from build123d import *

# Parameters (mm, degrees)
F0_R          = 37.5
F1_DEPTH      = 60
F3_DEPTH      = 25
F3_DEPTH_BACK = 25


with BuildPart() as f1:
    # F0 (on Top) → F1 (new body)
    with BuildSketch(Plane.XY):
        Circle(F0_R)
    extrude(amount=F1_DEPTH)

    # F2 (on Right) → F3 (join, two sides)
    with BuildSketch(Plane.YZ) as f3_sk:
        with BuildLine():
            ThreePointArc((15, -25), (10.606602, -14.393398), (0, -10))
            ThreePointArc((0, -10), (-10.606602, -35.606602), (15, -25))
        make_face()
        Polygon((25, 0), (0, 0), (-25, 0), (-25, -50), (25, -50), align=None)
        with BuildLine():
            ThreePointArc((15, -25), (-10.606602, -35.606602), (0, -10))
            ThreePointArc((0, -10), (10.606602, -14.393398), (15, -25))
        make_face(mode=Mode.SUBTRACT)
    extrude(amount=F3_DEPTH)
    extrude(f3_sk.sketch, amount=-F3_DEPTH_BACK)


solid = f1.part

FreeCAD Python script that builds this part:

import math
import FreeCAD as App
import Part
import Sketcher
Q = App.Units.Quantity


def add_polygon(sketch, points):
    """Adds a closed chain of lines whose ends are joined by coincident constraints."""
    first, n = sketch.GeometryCount, len(points)
    for a, b in zip(points, points[1:] + points[:1]):
        sketch.addGeometry(Part.LineSegment(App.Vector(*a, 0), App.Vector(*b, 0)), False)
    for i in range(n):
        sketch.addConstraint(Sketcher.Constraint("Coincident", first + i, 2, first + (i + 1) % n, 1))

doc = App.newDocument("Part")
body = doc.addObject("PartDesign::Body", "Body")

sketch1 = body.newObject("Sketcher::SketchObject", "Sketch")
sketch1.AttachmentSupport = (doc.getObject("XY_Plane"), [""])
sketch1.MapMode = "FlatFace"
sketch1.addGeometry(Part.Circle(App.Vector(0, 0, 0), App.Vector(0, 0, 1), 37.5), False)
sketch1.addConstraint([
    Sketcher.Constraint("Coincident", 0, 3, -1, 1),
    Sketcher.Constraint("Diameter", 0, Q("75 mm")),
])
pad1 = body.newObject("PartDesign::Pad", "Pad")
pad1.Profile = sketch1
pad1.Length = 60

sketch2 = body.newObject("Sketcher::SketchObject", "Sketch001")
sketch2.AttachmentSupport = (doc.getObject("YZ_Plane"), [""])
sketch2.MapMode = "FlatFace"
add_polygon(sketch2, [(25, 0), (-25, 0), (-25, -50), (25, -50)])
sketch2.addGeometry(Part.ArcOfCircle(Part.Circle(App.Vector(0.000001, -24.999999, 0), App.Vector(0, 0, 1), 14.999999), math.radians(-0.000004), math.radians(90.000004)), False)
sketch2.addGeometry(Part.ArcOfCircle(Part.Circle(App.Vector(0, -25, 0), App.Vector(0, 0, 1), 15), math.radians(89.999999), math.radians(360.000001)), False)
sketch2.addConstraint([
    Sketcher.Constraint("Tangent", 4, 1, 5, 2),
    Sketcher.Constraint("Coincident", 5, 1, 4, 2),
    Sketcher.Constraint("Horizontal", 0),
    Sketcher.Constraint("Vertical", 1),
    Sketcher.Constraint("Horizontal", 2),
    Sketcher.Constraint("Vertical", 3),
    Sketcher.Constraint("Symmetric", 0, 2, 3, 2, -1, 1),
    Sketcher.Constraint("PointOnObject", 4, 3, -2),
    Sketcher.Constraint("PointOnObject", 5, 1, -2),
    Sketcher.Constraint("Horizontal", 5, 3, 4, 1),
    Sketcher.Constraint("Equal", 2, 1),
    Sketcher.Constraint("Radius", 4, Q("14.999999 mm")),
    Sketcher.Constraint("DistanceX", 0, 2, 0, 1, Q("50 mm")),
    Sketcher.Constraint("DistanceY", 4, 3, -1, 1, Q("24.999999 mm")),
])
pad2 = body.newObject("PartDesign::Pad", "Pad001")
pad2.Profile = sketch2
pad2.Type = "TwoLengths"
pad2.Length = 25
pad2.Length2 = 25

doc.recompute()
